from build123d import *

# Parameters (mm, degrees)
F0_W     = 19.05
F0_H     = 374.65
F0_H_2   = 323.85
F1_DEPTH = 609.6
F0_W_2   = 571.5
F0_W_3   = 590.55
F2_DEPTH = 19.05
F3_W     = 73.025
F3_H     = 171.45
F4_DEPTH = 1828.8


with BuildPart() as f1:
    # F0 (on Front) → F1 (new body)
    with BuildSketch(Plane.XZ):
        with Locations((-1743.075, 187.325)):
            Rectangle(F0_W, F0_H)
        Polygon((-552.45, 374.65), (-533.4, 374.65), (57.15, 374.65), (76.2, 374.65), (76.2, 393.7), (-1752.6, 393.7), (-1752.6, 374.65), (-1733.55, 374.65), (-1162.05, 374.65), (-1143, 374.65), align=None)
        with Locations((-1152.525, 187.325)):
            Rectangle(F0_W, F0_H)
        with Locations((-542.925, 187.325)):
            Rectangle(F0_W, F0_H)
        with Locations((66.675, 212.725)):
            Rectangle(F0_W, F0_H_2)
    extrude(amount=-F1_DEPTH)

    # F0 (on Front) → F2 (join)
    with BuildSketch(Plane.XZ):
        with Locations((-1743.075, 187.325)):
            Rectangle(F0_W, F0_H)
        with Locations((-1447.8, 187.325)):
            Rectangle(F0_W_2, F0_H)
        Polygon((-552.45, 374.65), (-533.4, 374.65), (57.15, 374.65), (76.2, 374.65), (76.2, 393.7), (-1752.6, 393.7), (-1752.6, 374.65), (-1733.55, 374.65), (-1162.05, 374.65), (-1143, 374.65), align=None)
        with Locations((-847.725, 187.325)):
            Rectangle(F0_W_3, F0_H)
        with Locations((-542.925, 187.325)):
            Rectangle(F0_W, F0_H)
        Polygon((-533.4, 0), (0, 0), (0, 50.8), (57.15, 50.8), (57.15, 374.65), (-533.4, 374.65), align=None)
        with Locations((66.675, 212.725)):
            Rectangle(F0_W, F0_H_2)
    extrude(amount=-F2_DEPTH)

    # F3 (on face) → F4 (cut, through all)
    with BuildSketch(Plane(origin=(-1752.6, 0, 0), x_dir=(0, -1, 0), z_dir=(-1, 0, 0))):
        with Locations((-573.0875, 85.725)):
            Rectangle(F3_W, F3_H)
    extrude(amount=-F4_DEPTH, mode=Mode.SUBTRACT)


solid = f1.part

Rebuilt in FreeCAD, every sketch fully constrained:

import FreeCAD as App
import Part
import Sketcher

V = App.Vector
Q = App.Units.Quantity

doc = App.newDocument("Part")
body = doc.addObject("PartDesign::Body", "Body")

# Sketch on XZ plane
sketch1 = body.newObject("Sketcher::SketchObject", "Sketch")
sketch1.AttachmentSupport = (doc.getObject("XZ_Plane"), [""])
sketch1.MapMode = "FlatFace"
sketch1.addGeometry([
    Part.LineSegment(V(-1752.6, 0, 0), V(-1733.55, 0, 0)),  # 0
    Part.LineSegment(V(-1733.55, 0, 0), V(-1733.55, 374.65, 0)),  # 1
    Part.LineSegment(V(-1733.55, 374.65, 0), V(-1162.05, 374.65, 0)),  # 2
    Part.LineSegment(V(-1162.05, 374.65, 0), V(-1162.05, 0, 0)),  # 3
    Part.LineSegment(V(-1162.05, 0, 0), V(-1143, 0, 0)),  # 4
    Part.LineSegment(V(-1143, 0, 0), V(-1143, 374.65, 0)),  # 5
    Part.LineSegment(V(-1143, 374.65, 0), V(-552.45, 374.65, 0)),  # 6
    Part.LineSegment(V(-552.45, 374.65, 0), V(-552.45, 0, 0)),  # 7
    Part.LineSegment(V(-552.45, 0, 0), V(-533.4, 0, 0)),  # 8
    Part.LineSegment(V(-533.4, 0, 0), V(-533.4, 374.65, 0)),  # 9
    Part.LineSegment(V(-533.4, 374.65, 0), V(57.15, 374.65, 0)),  # 10
    Part.LineSegment(V(57.15, 374.65, 0), V(57.15, 50.8, 0)),  # 11
    Part.LineSegment(V(57.15, 50.8, 0), V(76.2, 50.8, 0)),  # 12
    Part.LineSegment(V(76.2, 50.8, 0), V(76.2, 393.7, 0)),  # 13
    Part.LineSegment(V(76.2, 393.7, 0), V(-1752.6, 393.7, 0)),  # 14
    Part.LineSegment(V(-1752.6, 393.7, 0), V(-1752.6, 0, 0)),  # 15
], False)
sketch1.addConstraint([
    Sketcher.Constraint("Coincident", 0, 2, 1, 1),
    Sketcher.Constraint("Coincident", 1, 2, 2, 1),
    Sketcher.Constraint("Coincident", 2, 2, 3, 1),
    Sketcher.Constraint("Coincident", 3, 2, 4, 1),
    Sketcher.Constraint("Coincident", 4, 2, 5, 1),
    Sketcher.Constraint("Coincident", 5, 2, 6, 1),
    Sketcher.Constraint("Coincident", 6, 2, 7, 1),
    Sketcher.Constraint("Coincident", 7, 2, 8, 1),
    Sketcher.Constraint("Coincident", 8, 2, 9, 1),
    Sketcher.Constraint("Coincident", 9, 2, 10, 1),
    Sketcher.Constraint("Coincident", 10, 2, 11, 1),
    Sketcher.Constraint("Coincident", 11, 2, 12, 1),
    Sketcher.Constraint("Coincident", 12, 2, 13, 1),
    Sketcher.Constraint("Coincident", 13, 2, 14, 1),
    Sketcher.Constraint("Coincident", 14, 2, 15, 1),
    Sketcher.Constraint("Coincident", 15, 2, 0, 1),
    Sketcher.Constraint("Horizontal", 0),
    Sketcher.Constraint("Vertical", 1),
    Sketcher.Constraint("Horizontal", 2),
    Sketcher.Constraint("Vertical", 3),
    Sketcher.Constraint("Horizontal", 4),
    Sketcher.Constraint("Vertical", 5),
    Sketcher.Constraint("Horizontal", 6),
    Sketcher.Constraint("Vertical", 7),
    Sketcher.Constraint("Horizontal", 8),
    Sketcher.Constraint("Vertical", 9),
    Sketcher.Constraint("Horizontal", 10),
    Sketcher.Constraint("Vertical", 11),
    Sketcher.Constraint("Horizontal", 12),
    Sketcher.Constraint("Vertical", 13),
    Sketcher.Constraint("Horizontal", 14),
    Sketcher.Constraint("Vertical", 15),
    Sketcher.Constraint("PointOnObject", 0, 2, -1),
    Sketcher.Constraint("PointOnObject", 3, 2, -1),
    Sketcher.Constraint("PointOnObject", 7, 2, -1),
    Sketcher.Constraint("Horizontal", 2, 2, 5, 2),
    Sketcher.Constraint("Horizontal", 6, 2, 9, 2),
    Sketcher.Constraint("Equal", 0, 4),
    Sketcher.Constraint("Equal", 4, 8),
    Sketcher.Constraint("Equal", 6, 10),
    Sketcher.Constraint("Equal", 8, 12),
    Sketcher.Constraint("DistanceX", 14, 2, 14, 1, Q("72 in")),
    Sketcher.Constraint("DistanceX", 2, 1, 2, 2, Q("22.5 in")),
    Sketcher.Constraint("DistanceY", 13, 1, 13, 2, Q("13.5 in")),
    Sketcher.Constraint("DistanceY", 15, 2, 15, 1, Q("15.5 in")),
    Sketcher.Constraint("DistanceX", 4, 2, -1, 1, Q("45 in")),
    Sketcher.Constraint("DistanceX", 8, 2, -1, 1, Q("21 in")),
    Sketcher.Constraint("DistanceY", 1, 1, 1, 2, Q("14.75 in")),
])
pad1 = body.newObject("PartDesign::Pad", "Pad")
pad1.Profile = sketch1
pad1.Length = Q("24 in")
pad1.Reversed = True

# Sketch on XZ plane
sketch2 = body.newObject("Sketcher::SketchObject", "Sketch001")
sketch2.AttachmentSupport = (doc.getObject("XZ_Plane"), [""])
sketch2.MapMode = "FlatFace"
sketch2.addGeometry([
    Part.LineSegment(V(-1752.6, 0, 0), V(-1162.05, 0, 0)),  # 0
    Part.LineSegment(V(-1162.05, 0, 0), V(-1162.05, 374.65, 0)),  # 1
    Part.LineSegment(V(-1162.05, 374.65, 0), V(-1143, 374.65, 0)),  # 2
    Part.LineSegment(V(-1143, 374.65, 0), V(-1143, 0, 0)),  # 3
    Part.LineSegment(V(-1143, 0, 0), V(0, 0, 0)),  # 4
    Part.LineSegment(V(0, 0, 0), V(0, 50.8, 0)),  # 5
    Part.LineSegment(V(0, 50.8, 0), V(76.2, 50.8, 0)),  # 6
    Part.LineSegment(V(76.2, 50.8, 0), V(76.2, 393.7, 0)),  # 7
    Part.LineSegment(V(76.2, 393.7, 0), V(-1752.6, 393.7, 0)),  # 8
    Part.LineSegment(V(-1752.6, 393.7, 0), V(-1752.6, 0, 0)),  # 9
], False)
sketch2.addConstraint([
    Sketcher.Constraint("Coincident", 0, 2, 1, 1),
    Sketcher.Constraint("Coincident", 1, 2, 2, 1),
    Sketcher.Constraint("Coincident", 2, 2, 3, 1),
    Sketcher.Constraint("Coincident", 3, 2, 4, 1),
    Sketcher.Constraint("Coincident", 4, 2, 5, 1),
    Sketcher.Constraint("Coincident", 5, 2, 6, 1),
    Sketcher.Constraint("Coincident", 6, 2, 7, 1),
    Sketcher.Constraint("Coincident", 7, 2, 8, 1),
    Sketcher.Constraint("Coincident", 8, 2, 9, 1),
    Sketcher.Constraint("Coincident", 9, 2, 0, 1),
    Sketcher.Constraint("Horizontal", 0),
    Sketcher.Constraint("Vertical", 1),
    Sketcher.Constraint("Horizontal", 2),
    Sketcher.Constraint("Vertical", 3),
    Sketcher.Constraint("Horizontal", 4),
    Sketcher.Constraint("Vertical", 5),
    Sketcher.Constraint("Horizontal", 6),
    Sketcher.Constraint("Vertical", 7),
    Sketcher.Constraint("Horizontal", 8),
    Sketcher.Constraint("Vertical", 9),
    Sketcher.Constraint("Coincident", 4, 2, -1, 1),
    Sketcher.Constraint("PointOnObject", 0, 2, -1),
    Sketcher.Constraint("DistanceX", 4, 1, 4, 2, Q("45 in")),
    Sketcher.Constraint("DistanceX", 6, 1, 6, 2, Q("3 in")),
    Sketcher.Constraint("DistanceX", 8, 2, 8, 1, Q("72 in")),
    Sketcher.Constraint("DistanceY", 5, 1, 5, 2, Q("2 in")),
    Sketcher.Constraint("DistanceY", 7, 1, 7, 2, Q("13.5 in")),
    Sketcher.Constraint("DistanceX", 0, 1, 0, 2, Q("23.25 in")),
    Sketcher.Constraint("DistanceY", 1, 1, 1, 2, Q("14.75 in")),
])
pad2 = body.newObject("PartDesign::Pad", "Pad001")
pad2.Profile = sketch2
pad2.Length = Q("0.75 in")
pad2.Reversed = True

# Sketch on YZ plane
sketch3 = body.newObject("Sketcher::SketchObject", "Sketch002")
sketch3.AttachmentSupport = (doc.getObject("YZ_Plane"), [""])
sketch3.MapMode = "FlatFace"
sketch3.AttachmentOffset = App.Placement(V(0, 0, -69 * 25.4), App.Rotation())
sketch3.addGeometry([
    Part.LineSegment(V(609.6, 171.45, 0), V(609.6, 0, 0)),
    Part.LineSegment(V(609.6, 0, 0), V(536.575, 0, 0)),
    Part.LineSegment(V(536.575, 0, 0), V(536.575, 171.45, 0)),
    Part.LineSegment(V(536.575, 171.45, 0), V(609.6, 171.45, 0)),
], False)
sketch3.addConstraint([
    Sketcher.Constraint("Coincident", 0, 2, 1, 1),
    Sketcher.Constraint("Coincident", 1, 2, 2, 1),
    Sketcher.Constraint("Coincident", 2, 2, 3, 1),
    Sketcher.Constraint("Coincident", 3, 2, 0, 1),
    Sketcher.Constraint("Vertical", 0),
    Sketcher.Constraint("Horizontal", 1),
    Sketcher.Constraint("Vertical", 2),
    Sketcher.Constraint("Horizontal", 3),
    Sketcher.Constraint("PointOnObject", 0, 2, -1),
    Sketcher.Constraint("DistanceX", -1, 1, 0, 2, Q("24 in")),
    Sketcher.Constraint("DistanceY", 0, 2, 0, 1, Q("6.75 in")),
    Sketcher.Constraint("DistanceX", 1, 2, 1, 1, Q("2.875 in")),
])
pocket1 = body.newObject("PartDesign::Pocket", "Pocket")
pocket1.Profile = sketch3
pocket1.Type = "ThroughAll"
pocket1.Reversed = True

doc.recompute()
